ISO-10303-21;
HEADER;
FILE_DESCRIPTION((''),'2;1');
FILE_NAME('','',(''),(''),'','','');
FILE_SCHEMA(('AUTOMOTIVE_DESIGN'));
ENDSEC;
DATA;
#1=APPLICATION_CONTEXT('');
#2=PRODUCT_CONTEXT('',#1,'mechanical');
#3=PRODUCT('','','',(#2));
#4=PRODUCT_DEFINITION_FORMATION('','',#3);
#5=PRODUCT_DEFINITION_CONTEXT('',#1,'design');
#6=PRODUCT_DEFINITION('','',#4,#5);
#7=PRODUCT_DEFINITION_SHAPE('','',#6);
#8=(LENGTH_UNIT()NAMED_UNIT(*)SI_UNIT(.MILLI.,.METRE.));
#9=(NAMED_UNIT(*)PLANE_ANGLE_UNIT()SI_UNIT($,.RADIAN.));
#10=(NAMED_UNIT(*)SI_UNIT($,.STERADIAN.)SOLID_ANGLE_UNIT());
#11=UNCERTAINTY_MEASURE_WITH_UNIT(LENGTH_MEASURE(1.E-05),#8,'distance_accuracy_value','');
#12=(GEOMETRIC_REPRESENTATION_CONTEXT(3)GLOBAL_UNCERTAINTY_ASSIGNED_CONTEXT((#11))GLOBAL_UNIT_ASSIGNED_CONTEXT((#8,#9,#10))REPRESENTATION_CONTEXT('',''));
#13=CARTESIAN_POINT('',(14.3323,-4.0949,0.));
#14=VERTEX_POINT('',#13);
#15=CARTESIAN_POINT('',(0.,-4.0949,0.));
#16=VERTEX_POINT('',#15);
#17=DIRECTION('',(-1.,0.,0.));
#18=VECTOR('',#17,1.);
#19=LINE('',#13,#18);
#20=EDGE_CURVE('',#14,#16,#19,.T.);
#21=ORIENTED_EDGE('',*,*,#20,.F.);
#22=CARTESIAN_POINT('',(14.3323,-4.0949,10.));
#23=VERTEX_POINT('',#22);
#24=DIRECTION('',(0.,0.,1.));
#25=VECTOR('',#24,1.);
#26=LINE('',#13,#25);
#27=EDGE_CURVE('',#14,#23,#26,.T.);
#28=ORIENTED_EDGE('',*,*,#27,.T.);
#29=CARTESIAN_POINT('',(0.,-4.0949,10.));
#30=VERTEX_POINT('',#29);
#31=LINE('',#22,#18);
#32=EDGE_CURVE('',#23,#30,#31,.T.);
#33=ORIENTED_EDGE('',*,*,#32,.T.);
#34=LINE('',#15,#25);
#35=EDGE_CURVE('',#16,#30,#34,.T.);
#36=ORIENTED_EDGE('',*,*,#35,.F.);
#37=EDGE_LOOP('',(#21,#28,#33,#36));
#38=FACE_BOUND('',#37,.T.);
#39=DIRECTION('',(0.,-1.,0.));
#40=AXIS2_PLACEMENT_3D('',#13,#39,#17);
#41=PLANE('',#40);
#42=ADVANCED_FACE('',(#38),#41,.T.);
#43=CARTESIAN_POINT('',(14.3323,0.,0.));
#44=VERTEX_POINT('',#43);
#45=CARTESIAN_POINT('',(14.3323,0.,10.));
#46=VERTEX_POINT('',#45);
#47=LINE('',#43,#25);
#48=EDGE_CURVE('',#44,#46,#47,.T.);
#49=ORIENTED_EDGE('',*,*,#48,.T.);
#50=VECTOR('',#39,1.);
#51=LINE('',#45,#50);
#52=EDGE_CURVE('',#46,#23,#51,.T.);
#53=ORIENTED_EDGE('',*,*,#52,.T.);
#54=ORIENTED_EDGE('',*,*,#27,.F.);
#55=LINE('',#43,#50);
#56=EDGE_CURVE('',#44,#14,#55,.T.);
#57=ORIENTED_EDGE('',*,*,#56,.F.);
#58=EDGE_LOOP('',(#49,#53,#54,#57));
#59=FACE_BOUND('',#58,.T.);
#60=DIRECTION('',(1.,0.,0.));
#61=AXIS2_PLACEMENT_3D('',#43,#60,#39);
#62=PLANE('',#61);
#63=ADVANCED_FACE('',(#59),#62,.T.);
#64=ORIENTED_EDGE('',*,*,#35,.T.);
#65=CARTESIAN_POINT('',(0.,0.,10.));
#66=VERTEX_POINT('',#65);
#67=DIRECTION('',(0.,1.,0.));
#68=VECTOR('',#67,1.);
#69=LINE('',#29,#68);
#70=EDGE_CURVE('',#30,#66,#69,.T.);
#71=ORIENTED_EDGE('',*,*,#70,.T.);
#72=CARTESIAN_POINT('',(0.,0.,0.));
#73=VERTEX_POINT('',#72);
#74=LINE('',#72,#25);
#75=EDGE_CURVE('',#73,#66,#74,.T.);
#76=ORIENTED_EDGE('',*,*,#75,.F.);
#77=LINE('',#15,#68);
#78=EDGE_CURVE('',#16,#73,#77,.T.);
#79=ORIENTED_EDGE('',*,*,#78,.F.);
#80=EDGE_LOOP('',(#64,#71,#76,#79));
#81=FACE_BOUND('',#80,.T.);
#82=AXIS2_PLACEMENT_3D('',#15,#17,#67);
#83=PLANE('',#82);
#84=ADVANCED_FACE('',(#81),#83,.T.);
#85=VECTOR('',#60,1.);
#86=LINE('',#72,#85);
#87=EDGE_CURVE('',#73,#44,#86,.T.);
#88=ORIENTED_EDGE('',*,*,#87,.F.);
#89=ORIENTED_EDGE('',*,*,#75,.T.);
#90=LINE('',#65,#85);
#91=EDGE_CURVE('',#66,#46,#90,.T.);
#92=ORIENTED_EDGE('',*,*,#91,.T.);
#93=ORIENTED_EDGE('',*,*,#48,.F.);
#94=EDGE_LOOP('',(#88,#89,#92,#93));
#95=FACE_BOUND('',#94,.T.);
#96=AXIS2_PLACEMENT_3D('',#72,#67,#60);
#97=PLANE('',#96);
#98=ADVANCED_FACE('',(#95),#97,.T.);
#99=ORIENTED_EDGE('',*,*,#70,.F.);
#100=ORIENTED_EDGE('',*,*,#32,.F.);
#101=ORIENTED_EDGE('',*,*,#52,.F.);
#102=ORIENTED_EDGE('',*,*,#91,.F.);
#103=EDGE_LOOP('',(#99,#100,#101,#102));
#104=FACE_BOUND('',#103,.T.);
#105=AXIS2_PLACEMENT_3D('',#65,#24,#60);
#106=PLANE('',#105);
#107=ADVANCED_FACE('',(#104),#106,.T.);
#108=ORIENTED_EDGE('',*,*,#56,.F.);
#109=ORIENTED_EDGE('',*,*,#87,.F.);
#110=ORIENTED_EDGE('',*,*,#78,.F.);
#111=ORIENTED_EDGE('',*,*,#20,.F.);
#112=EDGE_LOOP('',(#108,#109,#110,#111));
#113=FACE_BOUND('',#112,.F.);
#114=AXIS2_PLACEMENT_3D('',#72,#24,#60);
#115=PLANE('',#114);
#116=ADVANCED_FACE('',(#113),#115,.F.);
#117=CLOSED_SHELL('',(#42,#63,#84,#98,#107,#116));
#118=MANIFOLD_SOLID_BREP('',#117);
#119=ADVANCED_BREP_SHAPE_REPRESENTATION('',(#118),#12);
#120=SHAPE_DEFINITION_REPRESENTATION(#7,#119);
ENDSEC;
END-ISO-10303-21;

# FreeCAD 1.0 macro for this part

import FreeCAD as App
import Part
import Sketcher
from FreeCAD import Vector


def add_polygon(sketch, points):
    """Adds a closed chain of lines whose ends are joined by coincident constraints."""
    first, n = sketch.GeometryCount, len(points)
    for a, b in zip(points, points[1:] + points[:1]):
        sketch.addGeometry(Part.LineSegment(App.Vector(*a, 0), App.Vector(*b, 0)), False)
    for i in range(n):
        sketch.addConstraint(Sketcher.Constraint("Coincident", first + i, 2, first + (i + 1) % n, 1))

doc = App.newDocument("Part")
body = doc.addObject("PartDesign::Body", "Body")

sketch1 = body.newObject("Sketcher::SketchObject", "Sketch")
sketch1.AttachmentSupport = (doc.getObject("XY_Plane"), [""])
sketch1.MapMode = "FlatFace"
add_polygon(sketch1, [(14.3323, 0), (0, 0), (0, -4.0949), (14.3323, -4.0949)])
sketch1.addConstraint(Sketcher.Constraint("Horizontal", 0))
sketch1.addConstraint(Sketcher.Constraint("Vertical", 1))
sketch1.addConstraint(Sketcher.Constraint("Horizontal", 2))
sketch1.addConstraint(Sketcher.Constraint("Vertical", 3))
sketch1.addConstraint(Sketcher.Constraint("Coincident", 0, 2, -1, 1))
sketch1.addConstraint(Sketcher.Constraint("DistanceY", 1, 2, 1, 1, 4.095))
sketch1.addConstraint(Sketcher.Constraint("DistanceX", 0, 2, 0, 1, 14.3323))
pad1 = body.newObject("PartDesign::Pad", "Pad")
pad1.Profile = sketch1
pad1.Length = 10

doc.recompute()
